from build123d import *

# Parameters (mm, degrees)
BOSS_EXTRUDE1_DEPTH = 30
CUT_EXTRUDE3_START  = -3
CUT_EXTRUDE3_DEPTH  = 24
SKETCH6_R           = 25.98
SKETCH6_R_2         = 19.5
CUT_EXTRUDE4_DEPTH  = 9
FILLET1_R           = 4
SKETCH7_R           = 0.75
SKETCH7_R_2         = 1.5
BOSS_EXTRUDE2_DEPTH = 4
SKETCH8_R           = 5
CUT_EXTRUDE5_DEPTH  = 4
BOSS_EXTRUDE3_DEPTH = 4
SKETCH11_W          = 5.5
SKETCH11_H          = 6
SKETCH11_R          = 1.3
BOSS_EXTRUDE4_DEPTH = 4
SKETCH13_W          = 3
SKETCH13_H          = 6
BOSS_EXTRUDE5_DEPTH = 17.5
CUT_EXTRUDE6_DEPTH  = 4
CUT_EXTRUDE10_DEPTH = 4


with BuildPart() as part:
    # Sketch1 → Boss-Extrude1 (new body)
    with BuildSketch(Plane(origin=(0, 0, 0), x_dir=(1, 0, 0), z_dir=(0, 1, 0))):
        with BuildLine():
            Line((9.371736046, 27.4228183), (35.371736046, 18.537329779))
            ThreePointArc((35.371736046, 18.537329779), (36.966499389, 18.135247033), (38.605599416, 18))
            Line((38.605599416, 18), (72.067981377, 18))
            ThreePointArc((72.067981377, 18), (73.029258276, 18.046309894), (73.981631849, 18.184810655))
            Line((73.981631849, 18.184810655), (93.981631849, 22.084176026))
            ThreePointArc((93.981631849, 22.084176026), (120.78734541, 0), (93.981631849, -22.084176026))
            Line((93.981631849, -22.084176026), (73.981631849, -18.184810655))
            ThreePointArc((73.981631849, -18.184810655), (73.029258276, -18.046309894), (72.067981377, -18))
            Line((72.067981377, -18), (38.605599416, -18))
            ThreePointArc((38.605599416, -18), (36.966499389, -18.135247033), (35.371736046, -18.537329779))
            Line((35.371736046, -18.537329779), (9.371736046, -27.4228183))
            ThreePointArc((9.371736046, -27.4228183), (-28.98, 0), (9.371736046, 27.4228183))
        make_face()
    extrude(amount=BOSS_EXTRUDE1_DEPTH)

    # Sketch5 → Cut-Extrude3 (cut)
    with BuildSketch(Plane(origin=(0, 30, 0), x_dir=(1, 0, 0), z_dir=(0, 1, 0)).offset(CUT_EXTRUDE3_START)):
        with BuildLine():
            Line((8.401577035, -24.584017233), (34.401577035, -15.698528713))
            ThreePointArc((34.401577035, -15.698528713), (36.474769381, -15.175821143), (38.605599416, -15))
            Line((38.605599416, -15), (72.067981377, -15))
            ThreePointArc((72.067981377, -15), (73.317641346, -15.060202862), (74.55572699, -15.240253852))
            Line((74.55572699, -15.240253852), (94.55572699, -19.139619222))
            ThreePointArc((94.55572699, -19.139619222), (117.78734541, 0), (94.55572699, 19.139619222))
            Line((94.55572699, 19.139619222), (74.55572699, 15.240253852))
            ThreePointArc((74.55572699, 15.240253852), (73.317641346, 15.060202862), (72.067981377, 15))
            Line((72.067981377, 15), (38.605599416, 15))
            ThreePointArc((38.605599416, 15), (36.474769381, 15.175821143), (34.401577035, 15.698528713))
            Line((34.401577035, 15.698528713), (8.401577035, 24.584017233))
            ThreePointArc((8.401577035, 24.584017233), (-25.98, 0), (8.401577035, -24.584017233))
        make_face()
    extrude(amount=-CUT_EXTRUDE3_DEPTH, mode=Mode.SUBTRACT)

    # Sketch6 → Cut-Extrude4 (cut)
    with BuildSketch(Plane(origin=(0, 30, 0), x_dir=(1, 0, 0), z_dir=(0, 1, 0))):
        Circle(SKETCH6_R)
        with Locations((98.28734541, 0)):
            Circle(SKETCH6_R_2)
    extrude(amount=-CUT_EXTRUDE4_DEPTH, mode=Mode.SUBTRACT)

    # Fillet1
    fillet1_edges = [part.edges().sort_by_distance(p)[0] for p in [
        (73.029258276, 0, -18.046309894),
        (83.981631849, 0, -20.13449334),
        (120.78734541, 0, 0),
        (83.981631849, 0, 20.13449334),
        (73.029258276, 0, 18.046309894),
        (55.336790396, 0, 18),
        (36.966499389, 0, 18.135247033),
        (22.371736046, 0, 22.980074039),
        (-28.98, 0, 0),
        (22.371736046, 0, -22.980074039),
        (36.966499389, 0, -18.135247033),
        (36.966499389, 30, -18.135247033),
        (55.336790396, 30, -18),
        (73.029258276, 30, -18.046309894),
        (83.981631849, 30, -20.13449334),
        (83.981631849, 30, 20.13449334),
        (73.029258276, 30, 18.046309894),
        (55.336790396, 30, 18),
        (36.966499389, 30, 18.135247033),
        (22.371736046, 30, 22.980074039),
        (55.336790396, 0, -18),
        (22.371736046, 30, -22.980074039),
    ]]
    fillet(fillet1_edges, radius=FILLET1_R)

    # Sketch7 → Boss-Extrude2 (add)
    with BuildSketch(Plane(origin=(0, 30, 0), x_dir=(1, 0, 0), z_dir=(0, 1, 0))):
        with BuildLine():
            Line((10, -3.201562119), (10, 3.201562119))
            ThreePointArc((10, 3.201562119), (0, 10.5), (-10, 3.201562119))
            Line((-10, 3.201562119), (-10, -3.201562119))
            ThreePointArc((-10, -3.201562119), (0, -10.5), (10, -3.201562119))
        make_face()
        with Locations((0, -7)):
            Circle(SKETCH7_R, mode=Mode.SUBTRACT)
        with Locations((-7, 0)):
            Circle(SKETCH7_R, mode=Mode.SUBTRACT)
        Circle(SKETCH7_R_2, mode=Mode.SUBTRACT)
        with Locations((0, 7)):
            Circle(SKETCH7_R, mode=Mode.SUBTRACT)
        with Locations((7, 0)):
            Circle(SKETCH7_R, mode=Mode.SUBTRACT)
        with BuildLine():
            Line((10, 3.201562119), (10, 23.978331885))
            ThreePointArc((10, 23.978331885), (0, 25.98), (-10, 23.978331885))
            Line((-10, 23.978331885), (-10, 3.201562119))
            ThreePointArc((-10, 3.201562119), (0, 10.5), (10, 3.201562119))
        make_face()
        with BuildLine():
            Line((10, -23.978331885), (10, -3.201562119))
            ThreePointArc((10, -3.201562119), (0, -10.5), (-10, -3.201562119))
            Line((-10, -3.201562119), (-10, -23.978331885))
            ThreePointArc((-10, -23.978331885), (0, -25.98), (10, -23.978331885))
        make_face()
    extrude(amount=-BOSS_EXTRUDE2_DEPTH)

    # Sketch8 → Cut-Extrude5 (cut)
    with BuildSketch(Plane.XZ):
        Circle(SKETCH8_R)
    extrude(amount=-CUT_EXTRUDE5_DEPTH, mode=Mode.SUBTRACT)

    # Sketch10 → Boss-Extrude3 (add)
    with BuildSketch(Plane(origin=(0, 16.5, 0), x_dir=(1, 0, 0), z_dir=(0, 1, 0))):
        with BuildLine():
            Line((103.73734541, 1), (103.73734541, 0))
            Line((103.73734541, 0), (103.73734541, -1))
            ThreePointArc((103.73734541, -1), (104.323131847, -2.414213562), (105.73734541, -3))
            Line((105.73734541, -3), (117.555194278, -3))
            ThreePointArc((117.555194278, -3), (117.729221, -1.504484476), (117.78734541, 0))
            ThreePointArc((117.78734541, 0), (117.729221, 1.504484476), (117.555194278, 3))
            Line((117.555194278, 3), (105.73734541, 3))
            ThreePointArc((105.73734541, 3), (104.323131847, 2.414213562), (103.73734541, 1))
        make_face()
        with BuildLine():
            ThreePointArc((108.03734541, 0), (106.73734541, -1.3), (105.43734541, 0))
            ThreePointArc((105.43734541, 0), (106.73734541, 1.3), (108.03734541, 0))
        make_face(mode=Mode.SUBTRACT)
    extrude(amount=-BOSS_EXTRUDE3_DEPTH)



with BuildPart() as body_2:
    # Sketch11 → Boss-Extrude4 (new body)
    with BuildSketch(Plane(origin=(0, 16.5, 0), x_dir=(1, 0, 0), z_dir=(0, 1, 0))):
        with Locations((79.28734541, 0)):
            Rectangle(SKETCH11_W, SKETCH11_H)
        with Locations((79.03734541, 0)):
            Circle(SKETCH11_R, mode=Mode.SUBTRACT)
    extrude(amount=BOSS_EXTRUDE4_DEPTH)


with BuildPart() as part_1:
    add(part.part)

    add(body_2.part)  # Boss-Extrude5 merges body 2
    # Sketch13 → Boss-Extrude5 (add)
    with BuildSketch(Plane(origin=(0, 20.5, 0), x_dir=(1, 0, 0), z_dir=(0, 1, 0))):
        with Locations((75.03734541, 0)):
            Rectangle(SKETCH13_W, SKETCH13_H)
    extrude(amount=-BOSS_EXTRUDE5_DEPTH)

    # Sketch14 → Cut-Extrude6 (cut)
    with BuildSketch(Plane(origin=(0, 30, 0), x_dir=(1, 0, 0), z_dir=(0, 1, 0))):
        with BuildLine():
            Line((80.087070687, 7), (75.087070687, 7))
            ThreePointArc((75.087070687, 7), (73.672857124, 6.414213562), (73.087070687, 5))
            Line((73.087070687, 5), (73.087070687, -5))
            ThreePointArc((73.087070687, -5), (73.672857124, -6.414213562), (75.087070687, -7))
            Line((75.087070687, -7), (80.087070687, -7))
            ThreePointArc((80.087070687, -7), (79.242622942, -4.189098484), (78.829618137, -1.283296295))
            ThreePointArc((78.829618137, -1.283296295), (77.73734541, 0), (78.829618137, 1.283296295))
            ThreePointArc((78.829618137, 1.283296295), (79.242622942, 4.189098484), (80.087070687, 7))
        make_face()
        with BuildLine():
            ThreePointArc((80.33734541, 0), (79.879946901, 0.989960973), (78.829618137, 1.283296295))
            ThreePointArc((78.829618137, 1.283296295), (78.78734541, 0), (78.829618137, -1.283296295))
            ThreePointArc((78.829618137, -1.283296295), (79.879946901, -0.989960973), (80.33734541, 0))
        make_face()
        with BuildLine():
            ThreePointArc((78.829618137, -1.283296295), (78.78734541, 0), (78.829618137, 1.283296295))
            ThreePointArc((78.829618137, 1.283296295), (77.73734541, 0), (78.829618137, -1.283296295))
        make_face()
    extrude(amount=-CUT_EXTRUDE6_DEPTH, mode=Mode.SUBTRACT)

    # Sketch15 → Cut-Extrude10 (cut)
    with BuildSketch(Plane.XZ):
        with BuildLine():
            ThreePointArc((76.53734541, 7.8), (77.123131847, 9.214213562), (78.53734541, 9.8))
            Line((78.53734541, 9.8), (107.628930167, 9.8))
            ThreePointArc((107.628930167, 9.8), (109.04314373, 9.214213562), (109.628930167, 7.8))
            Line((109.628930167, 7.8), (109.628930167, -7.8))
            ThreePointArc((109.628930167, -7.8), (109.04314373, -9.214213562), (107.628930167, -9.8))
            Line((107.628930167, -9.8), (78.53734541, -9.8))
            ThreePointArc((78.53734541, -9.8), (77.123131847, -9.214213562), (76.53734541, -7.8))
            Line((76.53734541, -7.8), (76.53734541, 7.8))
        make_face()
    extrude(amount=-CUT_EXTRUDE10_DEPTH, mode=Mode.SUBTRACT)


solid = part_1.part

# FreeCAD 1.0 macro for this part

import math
import FreeCAD as App
import Part
import Sketcher

V = App.Vector
Q = App.Units.Quantity


def edges_at(feature, points):
    """Names of the edges that pass closest to the given points."""
    edges = feature.Shape.Edges
    near = lambda p: min(range(len(edges)), key=lambda i: edges[i].distToShape(Part.Vertex(*p))[0])
    return sorted({f"Edge{near(p) + 1}" for p in points})


def add_polygon(sketch, points):
    """Adds a closed chain of lines whose ends are joined by coincident constraints."""
    first, n = sketch.GeometryCount, len(points)
    for a, b in zip(points, points[1:] + points[:1]):
        sketch.addGeometry(Part.LineSegment(App.Vector(*a, 0), App.Vector(*b, 0)), False)
    for i in range(n):
        sketch.addConstraint(Sketcher.Constraint("Coincident", first + i, 2, first + (i + 1) % n, 1))

doc = App.newDocument("Part")
body = doc.addObject("PartDesign::Body", "Body")

# Sketch on XZ plane
sketch1 = body.newObject("Sketcher::SketchObject", "Sketch")
sketch1.AttachmentSupport = (doc.getObject("XZ_Plane"), [""])
sketch1.MapMode = "FlatFace"
sketch1.addGeometry([
    Part.LineSegment(V(35.4, -18.5, 0), V(9.4, -27.4, 0)),  # 0
    Part.ArcOfCircle(Part.Circle(V(0, 0, 0), V(0, 0, 1), 29), math.radians(71), math.radians(289)),  # 1
    Part.LineSegment(V(9.4, 27.4, 0), V(35.4, 18.5, 0)),  # 2
    Part.ArcOfCircle(Part.Circle(V(38.6, 28, 0), V(0, 0, 1), 10), math.radians(-108.87), math.radians(-90)),  # 3
    Part.LineSegment(V(38.6, 18, 0), V(72.1, 18, 0)),  # 4
    Part.ArcOfCircle(Part.Circle(V(72.1, 28, 0), V(0, 0, 1), 10), math.radians(-90), math.radians(-78.97)),  # 5
    Part.LineSegment(V(74, 18.2, 0), V(94, 22.1, 0)),  # 6
    Part.ArcOfCircle(Part.Circle(V(98.3, 0, 0), V(0, 0, 1), 22.5), math.radians(-101), math.radians(101)),  # 7
    Part.LineSegment(V(94, -22.1, 0), V(74, -18.2, 0)),  # 8
    Part.ArcOfCircle(Part.Circle(V(72.1, -28, 0), V(0, 0, 1), 10), math.radians(78.97), math.radians(90)),  # 9
    Part.LineSegment(V(72.1, -18, 0), V(38.6, -18, 0)),  # 10
    Part.ArcOfCircle(Part.Circle(V(38.6, -28, 0), V(0, 0, 1), 10), math.radians(90), math.radians(108.87)),  # 11
], False)
sketch1.addConstraint([
    Sketcher.Constraint("Tangent", 0, 2, 1, 2),
    Sketcher.Constraint("Tangent", 1, 1, 2, 1),
    Sketcher.Constraint("Tangent", 2, 2, 3, 1),
    Sketcher.Constraint("Tangent", 3, 2, 4, 1),
    Sketcher.Constraint("Tangent", 4, 2, 5, 1),
    Sketcher.Constraint("Tangent", 5, 2, 6, 1),
    Sketcher.Constraint("Tangent", 6, 2, 7, 2),
    Sketcher.Constraint("Tangent", 7, 1, 8, 1),
    Sketcher.Constraint("Tangent", 8, 2, 9, 1),
    Sketcher.Constraint("Tangent", 9, 2, 10, 1),
    Sketcher.Constraint("Tangent", 10, 2, 11, 1),
    Sketcher.Constraint("Tangent", 11, 2, 0, 1),
    Sketcher.Constraint("Horizontal", 4),
    Sketcher.Constraint("Horizontal", 10),
    Sketcher.Constraint("Coincident", 1, 3, -1, 1),
    Sketcher.Constraint("Equal", 3, 5),
    Sketcher.Constraint("Equal", 5, 9),
    Sketcher.Constraint("Equal", 9, 11),
    Sketcher.Constraint("Symmetric", 5, 3, 9, 3, -1),
    Sketcher.Constraint("PointOnObject", 7, 3, -1),
    Sketcher.Constraint("Vertical", 3, 3, 11, 3),
    Sketcher.Constraint("Radius", 3, Q("10 mm")),
    Sketcher.Constraint("Radius", 7, Q("22.5 mm")),
    Sketcher.Constraint("Radius", 1, Q("28.98 mm")),
    Sketcher.Constraint("DistanceY", -1, 1, 3, 3, Q("28 mm")),
    Sketcher.Constraint("DistanceX", 1, 1, 2, 2, Q("26 mm")),
    Sketcher.Constraint("DistanceX", 5, 2, 6, 2, Q("20 mm")),
    Sketcher.Constraint("DistanceX", 4, 1, 4, 2, Q("33.462382 mm")),
])
pad1 = body.newObject("PartDesign::Pad", "Pad")
pad1.Profile = sketch1
pad1.Length = 30
pad1.Reversed = True

# Sketch on XZ plane
sketch2 = body.newObject("Sketcher::SketchObject", "Sketch001")
sketch2.AttachmentSupport = (doc.getObject("XZ_Plane"), [""])
sketch2.MapMode = "FlatFace"
sketch2.AttachmentOffset = App.Placement(V(0, 0, -27), App.Rotation())
sketch2.addGeometry([
    Part.LineSegment(V(8.4, 24.6, 0), V(34.4, 15.7, 0)),  # 0
    Part.ArcOfCircle(Part.Circle(V(38.6, 28, 0), V(0, 0, 1), 13), math.radians(-108.87), math.radians(-90)),  # 1
    Part.LineSegment(V(38.6, 15, 0), V(72.1, 15, 0)),  # 2
    Part.ArcOfCircle(Part.Circle(V(72.1, 28, 0), V(0, 0, 1), 13), math.radians(-90), math.radians(-78.97)),  # 3
    Part.LineSegment(V(74.6, 15.2, 0), V(94.6, 19.1, 0)),  # 4
    Part.ArcOfCircle(Part.Circle(V(98.3, 0, 0), V(0, 0, 1), 19.5), math.radians(-101), math.radians(101)),  # 5
    Part.LineSegment(V(94.6, -19.1, 0), V(74.6, -15.2, 0)),  # 6
    Part.ArcOfCircle(Part.Circle(V(72.1, -28, 0), V(0, 0, 1), 13), math.radians(78.97), math.radians(90)),  # 7
    Part.LineSegment(V(72.1, -15, 0), V(38.6, -15, 0)),  # 8
    Part.ArcOfCircle(Part.Circle(V(38.6, -28, 0), V(0, 0, 1), 13), math.radians(90), math.radians(108.87)),  # 9
    Part.LineSegment(V(34.4, -15.7, 0), V(8.4, -24.6, 0)),  # 10
    Part.ArcOfCircle(Part.Circle(V(0, 0, 0), V(0, 0, 1), 26), math.radians(71), math.radians(289)),  # 11
], False)
sketch2.addConstraint([
    Sketcher.Constraint("Tangent", 0, 2, 1, 1),
    Sketcher.Constraint("Tangent", 1, 2, 2, 1),
    Sketcher.Constraint("Tangent", 2, 2, 3, 1),
    Sketcher.Constraint("Tangent", 3, 2, 4, 1),
    Sketcher.Constraint("Tangent", 4, 2, 5, 2),
    Sketcher.Constraint("Tangent", 5, 1, 6, 1),
    Sketcher.Constraint("Tangent", 6, 2, 7, 1),
    Sketcher.Constraint("Tangent", 7, 2, 8, 1),
    Sketcher.Constraint("Tangent", 8, 2, 9, 1),
    Sketcher.Constraint("Tangent", 9, 2, 10, 1),
    Sketcher.Constraint("Tangent", 10, 2, 11, 2),
    Sketcher.Constraint("Tangent", 11, 1, 0, 1),
    Sketcher.Constraint("Horizontal", 2),
    Sketcher.Constraint("Horizontal", 8),
    Sketcher.Constraint("Coincident", 11, 3, -1, 1),
    Sketcher.Constraint("Equal", 1, 3),
    Sketcher.Constraint("Equal", 3, 7),
    Sketcher.Constraint("Equal", 7, 9),
    Sketcher.Constraint("Symmetric", 3, 3, 7, 3, -1),
    Sketcher.Constraint("PointOnObject", 5, 3, -1),
    Sketcher.Constraint("Vertical", 1, 3, 9, 3),
    Sketcher.Constraint("Radius", 1, Q("13 mm")),
    Sketcher.Constraint("Radius", 5, Q("19.5 mm")),
    Sketcher.Constraint("Radius", 11, Q("25.98 mm")),
    Sketcher.Constraint("DistanceY", -1, 1, 1, 3, Q("28 mm")),
    Sketcher.Constraint("DistanceX", 3, 2, 4, 2, Q("20 mm")),
    Sketcher.Constraint("DistanceX", 10, 2, 9, 2, Q("26 mm")),
    Sketcher.Constraint("DistanceX", 2, 1, 2, 2, Q("33.462382 mm")),
])
pocket1 = body.newObject("PartDesign::Pocket", "Pocket")
pocket1.Profile = sketch2
pocket1.Length = 24
pocket1.Reversed = True

# Sketch on XZ plane
sketch3 = body.newObject("Sketcher::SketchObject", "Sketch002")
sketch3.AttachmentSupport = (doc.getObject("XZ_Plane"), [""])
sketch3.MapMode = "FlatFace"
sketch3.AttachmentOffset = App.Placement(V(0, 0, -30), App.Rotation())
sketch3.addGeometry([
    Part.Circle(V(0, 0, 0), V(0, 0, 1), 26),
    Part.Circle(V(98, 0, 0), V(0, 0, 1), 20),
], False)
sketch3.addConstraint([
    Sketcher.Constraint("Coincident", 0, 3, -1, 1),
    Sketcher.Constraint("PointOnObject", 1, 3, -1),
    Sketcher.Constraint("Diameter", 1, Q("39 mm")),
    Sketcher.Constraint("Diameter", 0, Q("51.96 mm")),
    Sketcher.Constraint("DistanceX", -1, 1, 1, 3, Q("98.287345 mm")),
])
pocket2 = body.newObject("PartDesign::Pocket", "Pocket001")
pocket2.Profile = sketch3
pocket2.Length = 9
pocket2.Reversed = True
doc.recompute()

fillet = body.newObject("PartDesign::Fillet", "Fillet")
fillet.Base = (pocket2, edges_at(pocket2, [
    (73.029, 0, -18.046),
    (83.982, 0, -20.134),
    (120.787, 0, 0),
    (83.982, 0, 20.134),
    (73.029, 0, 18.046),
    (55.337, 0, 18),
    (36.966, 0, 18.135),
    (22.372, 0, 22.98),
    (-28.98, 0, 0),
    (22.372, 0, -22.98),
    (36.966, 0, -18.135),
    (36.966, 30, -18.135),
    (55.337, 30, -18),
    (73.029, 30, -18.046),
    (83.982, 30, -20.134),
    (83.982, 30, 20.134),
    (73.029, 30, 18.046),
    (55.337, 30, 18),
    (36.966, 30, 18.135),
    (22.372, 30, 22.98),
    (55.337, 0, -18),
    (22.372, 30, -22.98),
]))
fillet.Radius = 4

# Sketch on XZ plane
sketch4 = body.newObject("Sketcher::SketchObject", "Sketch003")
sketch4.AttachmentSupport = (doc.getObject("XZ_Plane"), [""])
sketch4.MapMode = "FlatFace"
sketch4.AttachmentOffset = App.Placement(V(0, 0, -30), App.Rotation())
sketch4.addGeometry([
    Part.ArcOfCircle(Part.Circle(V(0, 0, 0), V(0, 0, 1), 26), math.radians(-113), math.radians(-67)),  # 0
    Part.LineSegment(V(-10, -24, 0), V(-10, 24, 0)),  # 1
    Part.ArcOfCircle(Part.Circle(V(0, 0, 0), V(0, 0, 1), 26), math.radians(67), math.radians(113)),  # 2
    Part.LineSegment(V(10, 24, 0), V(10, -24, 0)),  # 3
    Part.Circle(V(0, 7, 0), V(0, 0, 1), 0.8),  # 4
    Part.Circle(V(-7, 0, 0), V(0, 0, 1), 0.8),  # 5
    Part.Circle(V(0, 0, 0), V(0, 0, 1), 1.5),  # 6
    Part.Circle(V(7, 0, 0), V(0, 0, 1), 0.8),  # 7
    Part.Circle(V(0, -7, 0), V(0, 0, 1), 0.8),  # 8
], False)
sketch4.addConstraint([
    Sketcher.Constraint("Coincident", 0, 1, 1, 1),
    Sketcher.Constraint("Coincident", 1, 2, 2, 2),
    Sketcher.Constraint("Coincident", 2, 1, 3, 1),
    Sketcher.Constraint("Coincident", 3, 2, 0, 2),
    Sketcher.Constraint("Vertical", 1),
    Sketcher.Constraint("Vertical", 3),
    Sketcher.Constraint("Coincident", 0, 3, -1, 1),
    Sketcher.Constraint("Coincident", 2, 3, -1, 1),
    Sketcher.Constraint("Coincident", 6, 3, -1, 1),
    Sketcher.Constraint("Equal", 0, 2),
    Sketcher.Constraint("Equal", 4, 5),
    Sketcher.Constraint("Equal", 5, 7),
    Sketcher.Constraint("Equal", 7, 8),
    Sketcher.Constraint("Symmetric", 5, 3, 7, 3, -1, 1),
    Sketcher.Constraint("Symmetric", 4, 3, 8, 3, -1, 1),
    Sketcher.Constraint("PointOnObject", 4, 3, -2),
    Sketcher.Constraint("PointOnObject", 5, 3, -1),
    Sketcher.Constraint("Horizontal", 1, 2, 2, 1),
    Sketcher.Constraint("Diameter", 6, Q("3 mm")),
    Sketcher.Constraint("Diameter", 4, Q("1.5 mm")),
    Sketcher.Constraint("Radius", 0, Q("25.98 mm")),
    Sketcher.Constraint("DistanceY", -1, 1, 4, 3, Q("7 mm")),
    Sketcher.Constraint("DistanceX", 5, 3, -1, 1, Q("7 mm")),
    Sketcher.Constraint("DistanceX", 0, 1, -1, 1, Q("10 mm")),
])
pad2 = body.newObject("PartDesign::Pad", "Pad001")
pad2.Profile = sketch4
pad2.Length = 4

# Sketch on XZ plane
sketch5 = body.newObject("Sketcher::SketchObject", "Sketch004")
sketch5.AttachmentSupport = (doc.getObject("XZ_Plane"), [""])
sketch5.MapMode = "FlatFace"
sketch5.addGeometry(Part.Circle(V(0, 0, 0), V(0, 0, 1), 5), False)
sketch5.addConstraint([
    Sketcher.Constraint("Coincident", 0, 3, -1, 1),
    Sketcher.Constraint("Diameter", 0, Q("10 mm")),
])
pocket3 = body.newObject("PartDesign::Pocket", "Pocket002")
pocket3.Profile = sketch5
pocket3.Length = 4

# Sketch on XZ plane
sketch6 = body.newObject("Sketcher::SketchObject", "Sketch005")
sketch6.AttachmentSupport = (doc.getObject("XZ_Plane"), [""])
sketch6.MapMode = "FlatFace"
sketch6.AttachmentOffset = App.Placement(V(0, 0, -16.5), App.Rotation())
sketch6.addGeometry([
    Part.LineSegment(V(103.7, -1, 0), V(103.7, 1, 0)),  # 0
    Part.ArcOfCircle(Part.Circle(V(105.7, 1, 0), V(0, 0, 1), 2), math.radians(90), math.radians(180)),  # 1
    Part.LineSegment(V(105.7, 3, 0), V(117.6, 3, 0)),  # 2
    Part.ArcOfCircle(Part.Circle(V(98.3, 0, 0), V(0, 0, 1), 19.5), math.radians(0), math.radians(8.85)),  # 3
    Part.ArcOfCircle(Part.Circle(V(98.3, 0, 0), V(0, 0, 1), 19.5), math.radians(-8.85), math.radians(0)),  # 4
    Part.LineSegment(V(117.6, -3, 0), V(105.7, -3, 0)),  # 5
    Part.ArcOfCircle(Part.Circle(V(105.7, -1, 0), V(0, 0, 1), 2), math.radians(180), math.radians(270)),  # 6
    Part.Circle(V(106.7, 0, 0), V(0, 0, 1), 1.3),  # 7
], False)
sketch6.addConstraint([
    Sketcher.Constraint("Tangent", 0, 2, 1, 2),
    Sketcher.Constraint("Tangent", 1, 1, 2, 1),
    Sketcher.Constraint("Coincident", 2, 2, 3, 2),
    Sketcher.Constraint("Tangent", 3, 1, 4, 2),
    Sketcher.Constraint("Coincident", 4, 1, 5, 1),
    Sketcher.Constraint("Tangent", 5, 2, 6, 2),
    Sketcher.Constraint("Tangent", 6, 1, 0, 1),
    Sketcher.Constraint("Vertical", 0),
    Sketcher.Constraint("Horizontal", 2),
    Sketcher.Constraint("Horizontal", 5),
    Sketcher.Constraint("Equal", 3, 4),
    Sketcher.Constraint("Equal", 1, 6),
    Sketcher.Constraint("Symmetric", 2, 2, 4, 1, -1),
    Sketcher.Constraint("PointOnObject", 7, 3, -1),
    Sketcher.Constraint("PointOnObject", 3, 1, -1),
    Sketcher.Constraint("Radius", 1, Q("2 mm")),
    Sketcher.Constraint("Diameter", 7, Q("2.6 mm")),
    Sketcher.Constraint("Radius", 3, Q("19.5 mm")),
    Sketcher.Constraint("DistanceY", 0, 1, 0, 2, Q("2 mm")),
    Sketcher.Constraint("DistanceX", 1, 3, 7, 3, Q("1 mm")),
    Sketcher.Constraint("DistanceX", 3, 3, 1, 3, Q("7.45 mm")),
    Sketcher.Constraint("DistanceX", -1, 1, 1, 3, Q("105.737345 mm")),
])
pad3 = body.newObject("PartDesign::Pad", "Pad002")
pad3.Profile = sketch6
pad3.Length = 4
body2 = doc.addObject("PartDesign::Body", "Body001")

# Sketch on XZ plane
sketch7 = body2.newObject("Sketcher::SketchObject", "Sketch006")
sketch7.AttachmentSupport = (doc.getObject("XZ_Plane001"), [""])
sketch7.MapMode = "FlatFace"
sketch7.AttachmentOffset = App.Placement(V(0, 0, -16.5), App.Rotation())
add_polygon(sketch7, [(76.5, -3), (76.5, 3), (82, 3), (82, -3)])  # lines 0-3
sketch7.addGeometry(Part.Circle(V(79, 0, 0), V(0, 0, 1), 1.3), False)  # 4
sketch7.addConstraint([
    Sketcher.Constraint("Vertical", 0),
    Sketcher.Constraint("Horizontal", 1),
    Sketcher.Constraint("Vertical", 2),
    Sketcher.Constraint("Horizontal", 3),
    Sketcher.Constraint("PointOnObject", 4, 3, -1),
    Sketcher.Constraint("Diameter", 4, Q("2.6 mm")),
    Sketcher.Constraint("DistanceY", 0, 1, 0, 2, Q("6 mm")),
    Sketcher.Constraint("DistanceX", 1, 1, 1, 2, Q("5.5 mm")),
    Sketcher.Constraint("DistanceY", -1, 1, 0, 2, Q("3 mm")),
    Sketcher.Constraint("DistanceX", 4, 3, 1, 2, Q("3 mm")),
    Sketcher.Constraint("DistanceX", -1, 1, 4, 3, Q("79.037345 mm")),
])
pad4 = body2.newObject("PartDesign::Pad", "Pad003")
pad4.Profile = sketch7
pad4.Length = 4
pad4.Reversed = True
body.AllowCompound = True
doc.recompute()

boolean = body.newObject("PartDesign::Boolean", "Boolean")
boolean.Type = "Fuse"
boolean.addObjects([body2])

# Sketch on XZ plane
sketch8 = body.newObject("Sketcher::SketchObject", "Sketch007")
sketch8.AttachmentSupport = (doc.getObject("XZ_Plane"), [""])
sketch8.MapMode = "FlatFace"
sketch8.AttachmentOffset = App.Placement(V(0, 0, -20.5), App.Rotation())
add_polygon(sketch8, [(73.5, -3), (73.5, 3), (76.5, 3), (76.5, -3)])  # lines 0-3
sketch8.addConstraint([
    Sketcher.Constraint("Vertical", 0),
    Sketcher.Constraint("Horizontal", 1),
    Sketcher.Constraint("Vertical", 2),
    Sketcher.Constraint("Horizontal", 3),
    Sketcher.Constraint("DistanceX", 1, 1, 1, 2, Q("3 mm")),
    Sketcher.Constraint("DistanceY", 0, 1, 0, 2, Q("6 mm")),
    Sketcher.Constraint("DistanceY", -1, 1, 0, 2, Q("3 mm")),
    Sketcher.Constraint("DistanceX", -1, 1, 0, 2, Q("73.537345 mm")),
])
pad5 = body.newObject("PartDesign::Pad", "Pad004")
pad5.Profile = sketch8
pad5.Length = 17.5

# Sketch on XZ plane
sketch9 = body.newObject("Sketcher::SketchObject", "Sketch008")
sketch9.AttachmentSupport = (doc.getObject("XZ_Plane"), [""])
sketch9.MapMode = "FlatFace"
sketch9.AttachmentOffset = App.Placement(V(0, 0, -30), App.Rotation())
sketch9.addGeometry([
    Part.LineSegment(V(80.1, -7, 0), V(75.1, -7, 0)),  # 0
    Part.ArcOfCircle(Part.Circle(V(75.1, -5, 0), V(0, 0, 1), 2), math.radians(180), math.radians(270)),  # 1
    Part.LineSegment(V(73.1, -5, 0), V(73.1, 5, 0)),  # 2
    Part.ArcOfCircle(Part.Circle(V(75.1, 5, 0), V(0, 0, 1), 2), math.radians(90), math.radians(180)),  # 3
    Part.LineSegment(V(75.1, 7, 0), V(80.1, 7, 0)),  # 4
    Part.ArcOfCircle(Part.Circle(V(98.3, 0, 0), V(0, 0, 1), 19.5), math.radians(158.96), math.radians(176.23)),  # 5
    Part.ArcOfCircle(Part.Circle(V(79, 0, 0), V(0, 0, 1), 1.3), math.radians(0), math.radians(99)),  # 6
    Part.ArcOfCircle(Part.Circle(V(79, 0, 0), V(0, 0, 1), 1.3), math.radians(-99), math.radians(0)),  # 7
    Part.ArcOfCircle(Part.Circle(V(98.3, 0, 0), V(0, 0, 1), 19.5), math.radians(-176.23), math.radians(-158.96)),  # 8
], False)
sketch9.addConstraint([
    Sketcher.Constraint("Tangent", 0, 2, 1, 2),
    Sketcher.Constraint("Tangent", 1, 1, 2, 1),
    Sketcher.Constraint("Tangent", 2, 2, 3, 2),
    Sketcher.Constraint("Tangent", 3, 1, 4, 1),
    Sketcher.Constraint("Coincident", 4, 2, 5, 1),
    Sketcher.Constraint("Coincident", 5, 2, 6, 2),
    Sketcher.Constraint("Tangent", 6, 1, 7, 2),
    Sketcher.Constraint("Coincident", 7, 1, 8, 1),
    Sketcher.Constraint("Coincident", 8, 2, 0, 1),
    Sketcher.Constraint("Horizontal", 0),
    Sketcher.Constraint("Vertical", 2),
    Sketcher.Constraint("Horizontal", 4),
    Sketcher.Constraint("Coincident", 8, 3, 5, 3),
    Sketcher.Constraint("Equal", 1, 3),
    Sketcher.Constraint("Equal", 6, 7),
    Sketcher.Constraint("Equal", 5, 8),
    Sketcher.Constraint("Symmetric", 5, 2, 7, 1, -1),
    Sketcher.Constraint("PointOnObject", 6, 1, -1),
    Sketcher.Constraint("Vertical", 4, 2, 8, 2),
    Sketcher.Constraint("Radius", 1, Q("2 mm")),
    Sketcher.Constraint("Radius", 5, Q("19.5 mm")),
    Sketcher.Constraint("Radius", 6, Q("1.3 mm")),
    Sketcher.Constraint("DistanceX", 0, 2, 0, 1, Q("5 mm")),
    Sketcher.Constraint("DistanceY", 2, 1, 2, 2, Q("10 mm")),
    Sketcher.Constraint("DistanceX", 6, 3, 5, 3, Q("19.25 mm")),
    Sketcher.Constraint("DistanceX", -1, 1, 1, 3, Q("75.087071 mm")),
])
pocket4 = body.newObject("PartDesign::Pocket", "Pocket003")
pocket4.Profile = sketch9
pocket4.Length = 4
pocket4.Reversed = True

# Sketch on XZ plane
sketch10 = body.newObject("Sketcher::SketchObject", "Sketch009")
sketch10.AttachmentSupport = (doc.getObject("XZ_Plane"), [""])
sketch10.MapMode = "FlatFace"
sketch10.addGeometry([
    Part.ArcOfCircle(Part.Circle(V(78.5, 7.8, 0), V(0, 0, 1), 2), math.radians(90), math.radians(180)),  # 0
    Part.LineSegment(V(76.5, 7.8, 0), V(76.5, -7.8, 0)),  # 1
    Part.ArcOfCircle(Part.Circle(V(78.5, -7.8, 0), V(0, 0, 1), 2), math.radians(180), math.radians(270)),  # 2
    Part.LineSegment(V(78.5, -9.8, 0), V(107.6, -9.8, 0)),  # 3
    Part.ArcOfCircle(Part.Circle(V(107.6, -7.8, 0), V(0, 0, 1), 2), math.radians(-90), math.radians(0)),  # 4
    Part.LineSegment(V(109.6, -7.8, 0), V(109.6, 7.8, 0)),  # 5
    Part.ArcOfCircle(Part.Circle(V(107.6, 7.8, 0), V(0, 0, 1), 2), math.radians(0), math.radians(90)),  # 6
    Part.LineSegment(V(107.6, 9.8, 0), V(78.5, 9.8, 0)),  # 7
], False)
sketch10.addConstraint([
    Sketcher.Constraint("Tangent", 0, 2, 1, 1),
    Sketcher.Constraint("Tangent", 1, 2, 2, 1),
    Sketcher.Constraint("Tangent", 2, 2, 3, 1),
    Sketcher.Constraint("Tangent", 3, 2, 4, 1),
    Sketcher.Constraint("Tangent", 4, 2, 5, 1),
    Sketcher.Constraint("Tangent", 5, 2, 6, 1),
    Sketcher.Constraint("Tangent", 6, 2, 7, 1),
    Sketcher.Constraint("Tangent", 7, 2, 0, 1),
    Sketcher.Constraint("Vertical", 1),
    Sketcher.Constraint("Horizontal", 3),
    Sketcher.Constraint("Vertical", 5),
    Sketcher.Constraint("Horizontal", 7),
    Sketcher.Constraint("Equal", 0, 2),
    Sketcher.Constraint("Equal", 2, 4),
    Sketcher.Constraint("Equal", 4, 6),
    Sketcher.Constraint("Radius", 0, Q("2 mm")),
    Sketcher.Constraint("DistanceY", 1, 2, 1, 1, Q("15.6 mm")),
    Sketcher.Constraint("DistanceY", -1, 1, 0, 3, Q("7.8 mm")),
    Sketcher.Constraint("DistanceX", 3, 1, 3, 2, Q("29.091585 mm")),
    Sketcher.Constraint("DistanceX", -1, 1, 4, 3, Q("107.62893 mm")),
])
pocket5 = body.newObject("PartDesign::Pocket", "Pocket004")
pocket5.Profile = sketch10
pocket5.Length = 4

doc.recompute()
